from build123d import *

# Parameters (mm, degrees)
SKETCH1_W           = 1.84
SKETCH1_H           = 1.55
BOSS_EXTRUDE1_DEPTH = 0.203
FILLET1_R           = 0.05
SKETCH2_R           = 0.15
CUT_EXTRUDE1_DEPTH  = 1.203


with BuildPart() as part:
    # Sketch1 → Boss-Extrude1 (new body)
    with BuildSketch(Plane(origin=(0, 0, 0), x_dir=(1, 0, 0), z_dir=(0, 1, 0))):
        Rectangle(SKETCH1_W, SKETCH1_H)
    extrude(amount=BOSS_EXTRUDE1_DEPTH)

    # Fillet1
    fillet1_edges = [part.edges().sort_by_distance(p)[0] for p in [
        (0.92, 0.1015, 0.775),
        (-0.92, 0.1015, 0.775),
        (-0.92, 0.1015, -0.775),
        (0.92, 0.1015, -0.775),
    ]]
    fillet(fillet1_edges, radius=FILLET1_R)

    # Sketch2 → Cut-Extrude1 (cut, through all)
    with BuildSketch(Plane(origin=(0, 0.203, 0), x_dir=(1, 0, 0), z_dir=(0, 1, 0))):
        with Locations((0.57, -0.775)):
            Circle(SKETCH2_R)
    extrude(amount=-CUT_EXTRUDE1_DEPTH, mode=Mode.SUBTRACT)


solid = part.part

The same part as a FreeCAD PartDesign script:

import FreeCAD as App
import Part
import Sketcher

V = App.Vector


def edges_at(feature, points):
    """Names of the edges that pass closest to the given points."""
    edges = feature.Shape.Edges
    near = lambda p: min(range(len(edges)), key=lambda i: edges[i].distToShape(Part.Vertex(*p))[0])
    return sorted({f"Edge{near(p) + 1}" for p in points})

doc = App.newDocument("Part")
body = doc.addObject("PartDesign::Body", "Body")

sketch1 = body.newObject("Sketcher::SketchObject", "Sketch")
sketch1.AttachmentSupport = (doc.getObject("XZ_Plane"), [""])
sketch1.MapMode = "FlatFace"
sketch1.addGeometry([
    Part.LineSegment(V(-0.9, -0.8, 0), V(-0.9, 0.8, 0)),
    Part.LineSegment(V(-0.9, 0.8, 0), V(0.9, 0.8, 0)),
    Part.LineSegment(V(0.9, 0.8, 0), V(0.9, -0.8, 0)),
    Part.LineSegment(V(0.9, -0.8, 0), V(-0.9, -0.8, 0)),
], False)
sketch1.addConstraint([
    Sketcher.Constraint("Coincident", 0, 2, 1, 1),
    Sketcher.Constraint("Coincident", 1, 2, 2, 1),
    Sketcher.Constraint("Coincident", 2, 2, 3, 1),
    Sketcher.Constraint("Coincident", 3, 2, 0, 1),
    Sketcher.Constraint("Vertical", 0),
    Sketcher.Constraint("Horizontal", 1),
    Sketcher.Constraint("Vertical", 2),
    Sketcher.Constraint("Horizontal", 3),
    Sketcher.Constraint("Symmetric", 0, 2, 2, 2, -1, 1),
    Sketcher.Constraint("DistanceX", 1, 1, 1, 2, 1.84),
    Sketcher.Constraint("DistanceY", 0, 1, 0, 2, 1.55),
])
pad1 = body.newObject("PartDesign::Pad", "Pad")
pad1.Profile = sketch1
pad1.Length = 0.203
pad1.Reversed = True
doc.recompute()

fillet = body.newObject("PartDesign::Fillet", "Fillet")
fillet.Base = (pad1, edges_at(pad1, [
    (0.92, 0.102, 0.775),
    (-0.92, 0.102, 0.775),
    (-0.92, 0.102, -0.775),
    (0.92, 0.102, -0.775),
]))
fillet.Radius = 0.05

sketch2 = body.newObject("Sketcher::SketchObject", "Sketch001")
sketch2.AttachmentSupport = (doc.getObject("XZ_Plane"), [""])
sketch2.MapMode = "FlatFace"
sketch2.AttachmentOffset = App.Placement(V(0, 0, -0.203), App.Rotation())
sketch2.addGeometry(Part.Circle(V(0.57, 0.78, 0), V(0, 0, 1), 0.15), False)
sketch2.addConstraint([
    Sketcher.Constraint("Diameter", 0, 0.3),
    Sketcher.Constraint("DistanceX", -1, 1, 0, 3, 0.57),
    Sketcher.Constraint("DistanceY", -1, 1, 0, 3, 0.775),
])
pocket1 = body.newObject("PartDesign::Pocket", "Pocket")
pocket1.Profile = sketch2
pocket1.Type = "ThroughAll"
pocket1.Reversed = True

doc.recompute()
